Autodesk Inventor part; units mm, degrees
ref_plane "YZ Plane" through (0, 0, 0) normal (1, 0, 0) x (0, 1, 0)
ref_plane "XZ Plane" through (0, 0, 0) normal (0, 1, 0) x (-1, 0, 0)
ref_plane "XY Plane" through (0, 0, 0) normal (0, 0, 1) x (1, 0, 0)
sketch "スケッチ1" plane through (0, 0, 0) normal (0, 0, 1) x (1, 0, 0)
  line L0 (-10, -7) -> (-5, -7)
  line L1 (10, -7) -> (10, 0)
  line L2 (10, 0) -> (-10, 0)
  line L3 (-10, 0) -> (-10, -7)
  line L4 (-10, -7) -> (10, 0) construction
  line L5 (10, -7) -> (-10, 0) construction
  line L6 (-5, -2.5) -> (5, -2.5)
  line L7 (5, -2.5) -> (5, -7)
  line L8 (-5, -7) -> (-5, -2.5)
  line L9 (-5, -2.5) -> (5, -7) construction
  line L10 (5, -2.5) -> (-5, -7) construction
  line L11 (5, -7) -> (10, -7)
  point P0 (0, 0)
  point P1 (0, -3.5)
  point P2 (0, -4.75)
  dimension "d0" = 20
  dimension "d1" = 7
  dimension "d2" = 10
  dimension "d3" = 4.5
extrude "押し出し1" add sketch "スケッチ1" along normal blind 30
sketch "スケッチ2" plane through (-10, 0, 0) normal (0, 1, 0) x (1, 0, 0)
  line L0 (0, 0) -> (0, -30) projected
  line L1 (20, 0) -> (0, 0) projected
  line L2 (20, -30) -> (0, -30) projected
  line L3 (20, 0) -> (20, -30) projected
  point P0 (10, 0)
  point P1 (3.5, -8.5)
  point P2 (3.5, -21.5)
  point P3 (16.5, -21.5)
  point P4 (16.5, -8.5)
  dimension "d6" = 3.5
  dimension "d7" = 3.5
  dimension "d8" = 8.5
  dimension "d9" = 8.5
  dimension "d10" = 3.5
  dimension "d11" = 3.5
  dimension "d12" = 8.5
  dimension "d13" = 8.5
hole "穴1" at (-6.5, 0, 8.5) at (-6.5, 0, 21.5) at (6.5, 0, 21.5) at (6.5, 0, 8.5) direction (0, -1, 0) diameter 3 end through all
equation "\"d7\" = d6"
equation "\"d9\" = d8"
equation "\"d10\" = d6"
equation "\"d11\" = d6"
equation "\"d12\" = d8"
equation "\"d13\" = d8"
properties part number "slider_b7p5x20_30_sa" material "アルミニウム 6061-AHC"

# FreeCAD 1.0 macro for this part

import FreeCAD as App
import Part
import Sketcher

V = App.Vector
Q = App.Units.Quantity

doc = App.newDocument("Part")
body = doc.addObject("PartDesign::Body", "Body")

# Sketch on XY plane
sketch1 = body.newObject("Sketcher::SketchObject", "Sketch")
sketch1.AttachmentSupport = (doc.getObject("XY_Plane"), [""])
sketch1.MapMode = "FlatFace"
sketch1.addGeometry([
    Part.LineSegment(V(-10, 0, 0), V(-10, -7, 0)),  # 0
    Part.LineSegment(V(-10, -7, 0), V(-5, -7, 0)),  # 1
    Part.LineSegment(V(-5, -7, 0), V(-5, -2.5, 0)),  # 2
    Part.LineSegment(V(-5, -2.5, 0), V(5, -2.5, 0)),  # 3
    Part.LineSegment(V(5, -2.5, 0), V(5, -7, 0)),  # 4
    Part.LineSegment(V(5, -7, 0), V(10, -7, 0)),  # 5
    Part.LineSegment(V(10, -7, 0), V(10, 0, 0)),  # 6
    Part.LineSegment(V(10, 0, 0), V(-10, 0, 0)),  # 7
], False)
sketch1.addConstraint([
    Sketcher.Constraint("Coincident", 0, 2, 1, 1),
    Sketcher.Constraint("Coincident", 1, 2, 2, 1),
    Sketcher.Constraint("Coincident", 2, 2, 3, 1),
    Sketcher.Constraint("Coincident", 3, 2, 4, 1),
    Sketcher.Constraint("Coincident", 4, 2, 5, 1),
    Sketcher.Constraint("Coincident", 5, 2, 6, 1),
    Sketcher.Constraint("Coincident", 6, 2, 7, 1),
    Sketcher.Constraint("Coincident", 7, 2, 0, 1),
    Sketcher.Constraint("Vertical", 0),
    Sketcher.Constraint("Horizontal", 1),
    Sketcher.Constraint("Vertical", 2),
    Sketcher.Constraint("Horizontal", 3),
    Sketcher.Constraint("Vertical", 4),
    Sketcher.Constraint("Horizontal", 5),
    Sketcher.Constraint("Vertical", 6),
    Sketcher.Constraint("Horizontal", 7),
    Sketcher.Constraint("Symmetric", 6, 2, 7, 2, -1, 1),
    Sketcher.Constraint("Symmetric", 1, 2, 4, 2, -2),
    Sketcher.Constraint("DistanceX", 3, 1, 3, 2, Q("10 mm")),
    Sketcher.Constraint("DistanceX", 7, 2, 7, 1, Q("20 mm")),
    Sketcher.Constraint("DistanceY", 0, 2, 0, 1, Q("7 mm")),
    Sketcher.Constraint("DistanceY", 2, 1, 2, 2, Q("4.5 mm")),
])
pad1 = body.newObject("PartDesign::Pad", "Pad")
pad1.Profile = sketch1
pad1.Length = 30

# Sketch on XZ plane
sketch2 = body.newObject("Sketcher::SketchObject", "Sketch001")
sketch2.AttachmentSupport = (doc.getObject("XZ_Plane"), [""])
sketch2.MapMode = "FlatFace"
sketch2.addGeometry([
    Part.Circle(V(-6.5, 8.5, 0), V(0, 0, 1), 1.5),
    Part.Circle(V(-6.5, 21.5, 0), V(0, 0, 1), 1.5),
    Part.Circle(V(6.5, 21.5, 0), V(0, 0, 1), 1.5),
    Part.Circle(V(6.5, 8.5, 0), V(0, 0, 1), 1.5),
], False)
sketch2.addConstraint([
    Sketcher.Constraint("Equal", 0, 1),
    Sketcher.Constraint("Equal", 1, 2),
    Sketcher.Constraint("Equal", 2, 3),
    Sketcher.Constraint("Symmetric", 1, 3, 2, 3, -2),
    Sketcher.Constraint("Symmetric", 0, 3, 3, 3, -2),
    Sketcher.Constraint("Vertical", 0, 3, 1, 3),
    Sketcher.Constraint("Diameter", 0, Q("3 mm")),
    Sketcher.Constraint("DistanceY", 0, 3, 1, 3, Q("13 mm")),
    Sketcher.Constraint("DistanceX", 1, 3, 2, 3, Q("13 mm")),
    Sketcher.Constraint("DistanceY", -1, 1, 0, 3, Q("8.5 mm")),
])
doc.recompute()
hole = body.newObject("PartDesign::Hole", "Hole")
hole.Profile = sketch2
hole.ThreadType = "None"
hole.Diameter = 3
hole.DepthType = "ThroughAll"
hole.Reversed = True

doc.recompute()
